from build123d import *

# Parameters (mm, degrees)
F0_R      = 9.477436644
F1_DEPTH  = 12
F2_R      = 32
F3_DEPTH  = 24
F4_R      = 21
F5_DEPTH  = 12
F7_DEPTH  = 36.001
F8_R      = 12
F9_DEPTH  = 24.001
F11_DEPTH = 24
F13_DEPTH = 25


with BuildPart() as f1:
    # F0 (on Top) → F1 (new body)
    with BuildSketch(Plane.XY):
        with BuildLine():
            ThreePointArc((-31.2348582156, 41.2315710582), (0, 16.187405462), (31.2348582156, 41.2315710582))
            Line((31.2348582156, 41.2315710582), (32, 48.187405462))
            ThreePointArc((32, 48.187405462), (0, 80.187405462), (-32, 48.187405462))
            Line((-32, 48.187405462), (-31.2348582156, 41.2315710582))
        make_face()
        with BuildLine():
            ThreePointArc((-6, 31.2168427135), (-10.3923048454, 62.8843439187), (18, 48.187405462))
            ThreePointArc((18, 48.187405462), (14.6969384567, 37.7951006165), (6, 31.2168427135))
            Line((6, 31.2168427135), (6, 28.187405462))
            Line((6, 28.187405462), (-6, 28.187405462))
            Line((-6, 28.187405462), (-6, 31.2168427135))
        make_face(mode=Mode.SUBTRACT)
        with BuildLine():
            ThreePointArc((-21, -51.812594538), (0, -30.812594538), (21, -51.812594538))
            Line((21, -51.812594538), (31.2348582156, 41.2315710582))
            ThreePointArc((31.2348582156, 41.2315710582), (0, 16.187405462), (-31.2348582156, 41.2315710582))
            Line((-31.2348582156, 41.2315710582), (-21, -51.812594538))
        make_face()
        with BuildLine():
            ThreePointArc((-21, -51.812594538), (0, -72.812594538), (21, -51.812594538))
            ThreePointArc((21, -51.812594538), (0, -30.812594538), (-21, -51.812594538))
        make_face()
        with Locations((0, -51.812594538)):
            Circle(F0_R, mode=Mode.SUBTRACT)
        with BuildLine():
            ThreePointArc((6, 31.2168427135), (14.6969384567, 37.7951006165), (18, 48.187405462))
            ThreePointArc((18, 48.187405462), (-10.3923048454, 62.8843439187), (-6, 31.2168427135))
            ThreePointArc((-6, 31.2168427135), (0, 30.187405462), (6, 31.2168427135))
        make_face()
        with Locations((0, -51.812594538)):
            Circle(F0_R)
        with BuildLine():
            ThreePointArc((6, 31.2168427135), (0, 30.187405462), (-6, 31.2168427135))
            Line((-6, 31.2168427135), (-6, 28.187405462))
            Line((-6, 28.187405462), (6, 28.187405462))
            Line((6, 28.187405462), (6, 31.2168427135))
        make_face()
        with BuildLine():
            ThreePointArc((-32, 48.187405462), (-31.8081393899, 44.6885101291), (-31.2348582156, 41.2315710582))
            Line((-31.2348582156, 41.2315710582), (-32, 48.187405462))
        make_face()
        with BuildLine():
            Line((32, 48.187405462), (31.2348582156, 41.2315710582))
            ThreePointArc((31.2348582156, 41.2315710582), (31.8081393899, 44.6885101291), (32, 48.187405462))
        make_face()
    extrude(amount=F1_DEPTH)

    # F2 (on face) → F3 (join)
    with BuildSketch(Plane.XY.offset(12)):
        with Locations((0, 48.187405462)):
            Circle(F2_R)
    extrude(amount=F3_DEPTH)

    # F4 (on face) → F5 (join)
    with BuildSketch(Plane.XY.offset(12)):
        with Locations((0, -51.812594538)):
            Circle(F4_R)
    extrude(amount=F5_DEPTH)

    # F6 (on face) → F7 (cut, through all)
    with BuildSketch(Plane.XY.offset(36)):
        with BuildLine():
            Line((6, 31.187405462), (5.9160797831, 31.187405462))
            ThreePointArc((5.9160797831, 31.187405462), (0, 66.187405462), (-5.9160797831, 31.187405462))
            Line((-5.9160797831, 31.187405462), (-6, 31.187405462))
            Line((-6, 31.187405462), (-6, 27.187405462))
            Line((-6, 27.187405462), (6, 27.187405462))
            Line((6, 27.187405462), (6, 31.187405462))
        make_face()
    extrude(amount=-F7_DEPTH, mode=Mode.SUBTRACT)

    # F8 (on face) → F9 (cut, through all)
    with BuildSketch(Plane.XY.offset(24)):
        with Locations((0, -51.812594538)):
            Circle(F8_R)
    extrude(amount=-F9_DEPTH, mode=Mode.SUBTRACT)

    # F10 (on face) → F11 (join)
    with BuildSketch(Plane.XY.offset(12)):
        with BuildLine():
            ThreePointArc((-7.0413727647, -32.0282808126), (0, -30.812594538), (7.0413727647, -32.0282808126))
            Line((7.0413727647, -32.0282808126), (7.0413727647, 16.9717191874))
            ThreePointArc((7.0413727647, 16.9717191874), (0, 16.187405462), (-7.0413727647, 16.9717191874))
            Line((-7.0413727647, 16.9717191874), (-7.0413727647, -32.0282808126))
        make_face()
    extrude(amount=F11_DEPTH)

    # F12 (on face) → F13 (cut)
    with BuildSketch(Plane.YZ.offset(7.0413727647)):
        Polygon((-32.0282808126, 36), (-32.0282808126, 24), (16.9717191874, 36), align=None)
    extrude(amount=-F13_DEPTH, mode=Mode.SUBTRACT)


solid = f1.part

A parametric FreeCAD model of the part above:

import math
import FreeCAD as App
import Part
import Sketcher
Q = App.Units.Quantity

doc = App.newDocument("Part")
body = doc.addObject("PartDesign::Body", "Body")

# Sketch on XY plane
sketch1 = body.newObject("Sketcher::SketchObject", "Sketch")
sketch1.AttachmentSupport = (doc.getObject("XY_Plane"), [""])
sketch1.MapMode = "FlatFace"
sketch1.addGeometry([
    Part.LineSegment(App.Vector(-31, 41, 0), App.Vector(-21, -52, 0)),  # 0
    Part.ArcOfCircle(Part.Circle(App.Vector(0, -52, 0), App.Vector(0, 0, 1), 21), math.radians(180), math.radians(360)),  # 1
    Part.LineSegment(App.Vector(21, -52, 0), App.Vector(31, 41, 0)),  # 2
    Part.ArcOfCircle(Part.Circle(App.Vector(0, 48, 0), App.Vector(0, 0, 1), 32), math.radians(-12.55), math.radians(0)),  # 3
    Part.ArcOfCircle(Part.Circle(App.Vector(0, 48, 0), App.Vector(0, 0, 1), 32), math.radians(0), math.radians(180)),  # 4
    Part.ArcOfCircle(Part.Circle(App.Vector(0, 48, 0), App.Vector(0, 0, 1), 32), math.radians(-180), math.radians(-167.45)),  # 5
], False)
sketch1.addConstraint([
    Sketcher.Constraint("Coincident", 0, 2, 1, 1),
    Sketcher.Constraint("Coincident", 1, 2, 2, 1),
    Sketcher.Constraint("Coincident", 2, 2, 3, 1),
    Sketcher.Constraint("Tangent", 3, 2, 4, 1),
    Sketcher.Constraint("Tangent", 4, 2, 5, 1),
    Sketcher.Constraint("Coincident", 5, 2, 0, 1),
    Sketcher.Constraint("Equal", 3, 4),
    Sketcher.Constraint("Equal", 4, 5),
    Sketcher.Constraint("Symmetric", 0, 2, 1, 2, -2),
    Sketcher.Constraint("Symmetric", 3, 2, 4, 2, -2),
    Sketcher.Constraint("Horizontal", 1, 3, 0, 2),
    Sketcher.Constraint("Horizontal", 5, 3, 3, 2),
    Sketcher.Constraint("Horizontal", 2, 2, 5, 2),
    Sketcher.Constraint("Radius", 1, Q("21 mm")),
    Sketcher.Constraint("Radius", 3, Q("32 mm")),
    Sketcher.Constraint("DistanceY", 1, 3, 3, 3, Q("100 mm")),
    Sketcher.Constraint("Distance", 0, Q("93.60539 mm")),
    Sketcher.Constraint("DistanceY", -1, 1, 2, 2, Q("41.231571 mm")),
])
pad1 = body.newObject("PartDesign::Pad", "Pad")
pad1.Profile = sketch1
pad1.Length = 12

# Sketch on XY plane
sketch2 = body.newObject("Sketcher::SketchObject", "Sketch001")
sketch2.AttachmentSupport = (doc.getObject("XY_Plane"), [""])
sketch2.MapMode = "FlatFace"
sketch2.AttachmentOffset = App.Placement(App.Vector(0, 0, 12), App.Rotation())
sketch2.addGeometry(Part.Circle(App.Vector(0, 48, 0), App.Vector(0, 0, 1), 32), False)
sketch2.addConstraint([
    Sketcher.Constraint("PointOnObject", 0, 3, -2),
    Sketcher.Constraint("Diameter", 0, Q("64 mm")),
    Sketcher.Constraint("DistanceY", -1, 1, 0, 3, Q("48.187405 mm")),
])
pad2 = body.newObject("PartDesign::Pad", "Pad001")
pad2.Profile = sketch2
pad2.Length = 24

# Sketch on XY plane
sketch3 = body.newObject("Sketcher::SketchObject", "Sketch002")
sketch3.AttachmentSupport = (doc.getObject("XY_Plane"), [""])
sketch3.MapMode = "FlatFace"
sketch3.AttachmentOffset = App.Placement(App.Vector(0, 0, 12), App.Rotation())
sketch3.addGeometry(Part.Circle(App.Vector(0, -52, 0), App.Vector(0, 0, 1), 21), False)
sketch3.addConstraint([
    Sketcher.Constraint("PointOnObject", 0, 3, -2),
    Sketcher.Constraint("Diameter", 0, Q("42 mm")),
    Sketcher.Constraint("DistanceY", 0, 3, -1, 1, Q("51.812595 mm")),
])
pad3 = body.newObject("PartDesign::Pad", "Pad002")
pad3.Profile = sketch3
pad3.Length = 12

# Sketch on XY plane
sketch4 = body.newObject("Sketcher::SketchObject", "Sketch003")
sketch4.AttachmentSupport = (doc.getObject("XY_Plane"), [""])
sketch4.MapMode = "FlatFace"
sketch4.AttachmentOffset = App.Placement(App.Vector(0, 0, 36), App.Rotation())
sketch4.addGeometry([
    Part.LineSegment(App.Vector(6, 31.19, 0), App.Vector(5.92, 31.19, 0)),  # 0
    Part.ArcOfCircle(Part.Circle(App.Vector(0, 48.19, 0), App.Vector(0, 0, 1), 18), math.radians(-71), math.radians(251)),  # 1
    Part.LineSegment(App.Vector(-5.92, 31.19, 0), App.Vector(-6, 31.19, 0)),  # 2
    Part.LineSegment(App.Vector(-6, 31.19, 0), App.Vector(-6, 27.19, 0)),  # 3
    Part.LineSegment(App.Vector(-6, 27.19, 0), App.Vector(6, 27.19, 0)),  # 4
    Part.LineSegment(App.Vector(6, 27.19, 0), App.Vector(6, 31.19, 0)),  # 5
], False)
sketch4.addConstraint([
    Sketcher.Constraint("Coincident", 0, 2, 1, 1),
    Sketcher.Constraint("Coincident", 1, 2, 2, 1),
    Sketcher.Constraint("Coincident", 2, 2, 3, 1),
    Sketcher.Constraint("Coincident", 3, 2, 4, 1),
    Sketcher.Constraint("Coincident", 4, 2, 5, 1),
    Sketcher.Constraint("Coincident", 5, 2, 0, 1),
    Sketcher.Constraint("Horizontal", 0),
    Sketcher.Constraint("Horizontal", 2),
    Sketcher.Constraint("Vertical", 3),
    Sketcher.Constraint("Horizontal", 4),
    Sketcher.Constraint("Vertical", 5),
    Sketcher.Constraint("Symmetric", 0, 2, 1, 2, -2),
    Sketcher.Constraint("Equal", 0, 2),
    Sketcher.Constraint("Radius", 1, Q("18 mm")),
    Sketcher.Constraint("DistanceX", 4, 1, 4, 2, Q("12 mm")),
    Sketcher.Constraint("DistanceY", 3, 2, 3, 1, Q("4 mm")),
    Sketcher.Constraint("DistanceY", 0, 2, 1, 3, Q("17 mm")),
    Sketcher.Constraint("DistanceY", -1, 1, 1, 3, Q("48.187405 mm")),
])
pocket1 = body.newObject("PartDesign::Pocket", "Pocket")
pocket1.Profile = sketch4
pocket1.Type = "ThroughAll"

# Sketch on XY plane
sketch5 = body.newObject("Sketcher::SketchObject", "Sketch004")
sketch5.AttachmentSupport = (doc.getObject("XY_Plane"), [""])
sketch5.MapMode = "FlatFace"
sketch5.AttachmentOffset = App.Placement(App.Vector(0, 0, 24), App.Rotation())
sketch5.addGeometry(Part.Circle(App.Vector(0, -52, 0), App.Vector(0, 0, 1), 12), False)
sketch5.addConstraint([
    Sketcher.Constraint("PointOnObject", 0, 3, -2),
    Sketcher.Constraint("Diameter", 0, Q("24 mm")),
    Sketcher.Constraint("DistanceY", 0, 3, -1, 1, Q("51.812595 mm")),
])
pocket2 = body.newObject("PartDesign::Pocket", "Pocket001")
pocket2.Profile = sketch5
pocket2.Type = "ThroughAll"

# Sketch on XY plane
sketch6 = body.newObject("Sketcher::SketchObject", "Sketch005")
sketch6.AttachmentSupport = (doc.getObject("XY_Plane"), [""])
sketch6.MapMode = "FlatFace"
sketch6.AttachmentOffset = App.Placement(App.Vector(0, 0, 12), App.Rotation())
sketch6.addGeometry([
    Part.ArcOfCircle(Part.Circle(App.Vector(0, -52, 0), App.Vector(0, 0, 1), 21), math.radians(70), math.radians(110)),
    Part.LineSegment(App.Vector(7, -32, 0), App.Vector(7, 17, 0)),
    Part.ArcOfCircle(Part.Circle(App.Vector(0, 48, 0), App.Vector(0, 0, 1), 32), math.radians(-103), math.radians(-77)),
    Part.LineSegment(App.Vector(-7, 17, 0), App.Vector(-7, -32, 0)),
], False)
sketch6.addConstraint([
    Sketcher.Constraint("Coincident", 0, 1, 1, 1),
    Sketcher.Constraint("Coincident", 1, 2, 2, 2),
    Sketcher.Constraint("Coincident", 2, 1, 3, 1),
    Sketcher.Constraint("Coincident", 3, 2, 0, 2),
    Sketcher.Constraint("Vertical", 1),
    Sketcher.Constraint("Vertical", 3),
    Sketcher.Constraint("Symmetric", 1, 2, 2, 1, -2),
    Sketcher.Constraint("PointOnObject", 0, 3, -2),
    Sketcher.Constraint("Radius", 0, Q("21 mm")),
    Sketcher.Constraint("Radius", 2, Q("32 mm")),
    Sketcher.Constraint("DistanceY", 1, 1, 1, 2, Q("49 mm")),
    Sketcher.Constraint("DistanceY", 0, 3, 2, 3, Q("100 mm")),
    Sketcher.Constraint("DistanceY", 0, 1, -1, 1, Q("32.028281 mm")),
])
pad4 = body.newObject("PartDesign::Pad", "Pad003")
pad4.Profile = sketch6
pad4.Length = 24

# Sketch on YZ plane
sketch7 = body.newObject("Sketcher::SketchObject", "Sketch006")
sketch7.AttachmentSupport = (doc.getObject("YZ_Plane"), [""])
sketch7.MapMode = "FlatFace"
sketch7.AttachmentOffset = App.Placement(App.Vector(0, 0, 7.041373), App.Rotation())
sketch7.addGeometry([
    Part.LineSegment(App.Vector(-32, 36, 0), App.Vector(-32, 24, 0)),
    Part.LineSegment(App.Vector(-32, 24, 0), App.Vector(17, 36, 0)),
    Part.LineSegment(App.Vector(17, 36, 0), App.Vector(-32, 36, 0)),
], False)
sketch7.addConstraint([
    Sketcher.Constraint("Coincident", 0, 2, 1, 1),
    Sketcher.Constraint("Coincident", 1, 2, 2, 1),
    Sketcher.Constraint("Coincident", 2, 2, 0, 1),
    Sketcher.Constraint("Vertical", 0),
    Sketcher.Constraint("Horizontal", 2),
    Sketcher.Constraint("DistanceX", 2, 2, 2, 1, Q("49 mm")),
    Sketcher.Constraint("DistanceY", 0, 2, 0, 1, Q("12 mm")),
    Sketcher.Constraint("DistanceY", -1, 1, 0, 2, Q("24 mm")),
    Sketcher.Constraint("DistanceX", 0, 2, -1, 1, Q("32.028281 mm")),
])
pocket3 = body.newObject("PartDesign::Pocket", "Pocket002")
pocket3.Profile = sketch7
pocket3.Length = 25

doc.recompute()
